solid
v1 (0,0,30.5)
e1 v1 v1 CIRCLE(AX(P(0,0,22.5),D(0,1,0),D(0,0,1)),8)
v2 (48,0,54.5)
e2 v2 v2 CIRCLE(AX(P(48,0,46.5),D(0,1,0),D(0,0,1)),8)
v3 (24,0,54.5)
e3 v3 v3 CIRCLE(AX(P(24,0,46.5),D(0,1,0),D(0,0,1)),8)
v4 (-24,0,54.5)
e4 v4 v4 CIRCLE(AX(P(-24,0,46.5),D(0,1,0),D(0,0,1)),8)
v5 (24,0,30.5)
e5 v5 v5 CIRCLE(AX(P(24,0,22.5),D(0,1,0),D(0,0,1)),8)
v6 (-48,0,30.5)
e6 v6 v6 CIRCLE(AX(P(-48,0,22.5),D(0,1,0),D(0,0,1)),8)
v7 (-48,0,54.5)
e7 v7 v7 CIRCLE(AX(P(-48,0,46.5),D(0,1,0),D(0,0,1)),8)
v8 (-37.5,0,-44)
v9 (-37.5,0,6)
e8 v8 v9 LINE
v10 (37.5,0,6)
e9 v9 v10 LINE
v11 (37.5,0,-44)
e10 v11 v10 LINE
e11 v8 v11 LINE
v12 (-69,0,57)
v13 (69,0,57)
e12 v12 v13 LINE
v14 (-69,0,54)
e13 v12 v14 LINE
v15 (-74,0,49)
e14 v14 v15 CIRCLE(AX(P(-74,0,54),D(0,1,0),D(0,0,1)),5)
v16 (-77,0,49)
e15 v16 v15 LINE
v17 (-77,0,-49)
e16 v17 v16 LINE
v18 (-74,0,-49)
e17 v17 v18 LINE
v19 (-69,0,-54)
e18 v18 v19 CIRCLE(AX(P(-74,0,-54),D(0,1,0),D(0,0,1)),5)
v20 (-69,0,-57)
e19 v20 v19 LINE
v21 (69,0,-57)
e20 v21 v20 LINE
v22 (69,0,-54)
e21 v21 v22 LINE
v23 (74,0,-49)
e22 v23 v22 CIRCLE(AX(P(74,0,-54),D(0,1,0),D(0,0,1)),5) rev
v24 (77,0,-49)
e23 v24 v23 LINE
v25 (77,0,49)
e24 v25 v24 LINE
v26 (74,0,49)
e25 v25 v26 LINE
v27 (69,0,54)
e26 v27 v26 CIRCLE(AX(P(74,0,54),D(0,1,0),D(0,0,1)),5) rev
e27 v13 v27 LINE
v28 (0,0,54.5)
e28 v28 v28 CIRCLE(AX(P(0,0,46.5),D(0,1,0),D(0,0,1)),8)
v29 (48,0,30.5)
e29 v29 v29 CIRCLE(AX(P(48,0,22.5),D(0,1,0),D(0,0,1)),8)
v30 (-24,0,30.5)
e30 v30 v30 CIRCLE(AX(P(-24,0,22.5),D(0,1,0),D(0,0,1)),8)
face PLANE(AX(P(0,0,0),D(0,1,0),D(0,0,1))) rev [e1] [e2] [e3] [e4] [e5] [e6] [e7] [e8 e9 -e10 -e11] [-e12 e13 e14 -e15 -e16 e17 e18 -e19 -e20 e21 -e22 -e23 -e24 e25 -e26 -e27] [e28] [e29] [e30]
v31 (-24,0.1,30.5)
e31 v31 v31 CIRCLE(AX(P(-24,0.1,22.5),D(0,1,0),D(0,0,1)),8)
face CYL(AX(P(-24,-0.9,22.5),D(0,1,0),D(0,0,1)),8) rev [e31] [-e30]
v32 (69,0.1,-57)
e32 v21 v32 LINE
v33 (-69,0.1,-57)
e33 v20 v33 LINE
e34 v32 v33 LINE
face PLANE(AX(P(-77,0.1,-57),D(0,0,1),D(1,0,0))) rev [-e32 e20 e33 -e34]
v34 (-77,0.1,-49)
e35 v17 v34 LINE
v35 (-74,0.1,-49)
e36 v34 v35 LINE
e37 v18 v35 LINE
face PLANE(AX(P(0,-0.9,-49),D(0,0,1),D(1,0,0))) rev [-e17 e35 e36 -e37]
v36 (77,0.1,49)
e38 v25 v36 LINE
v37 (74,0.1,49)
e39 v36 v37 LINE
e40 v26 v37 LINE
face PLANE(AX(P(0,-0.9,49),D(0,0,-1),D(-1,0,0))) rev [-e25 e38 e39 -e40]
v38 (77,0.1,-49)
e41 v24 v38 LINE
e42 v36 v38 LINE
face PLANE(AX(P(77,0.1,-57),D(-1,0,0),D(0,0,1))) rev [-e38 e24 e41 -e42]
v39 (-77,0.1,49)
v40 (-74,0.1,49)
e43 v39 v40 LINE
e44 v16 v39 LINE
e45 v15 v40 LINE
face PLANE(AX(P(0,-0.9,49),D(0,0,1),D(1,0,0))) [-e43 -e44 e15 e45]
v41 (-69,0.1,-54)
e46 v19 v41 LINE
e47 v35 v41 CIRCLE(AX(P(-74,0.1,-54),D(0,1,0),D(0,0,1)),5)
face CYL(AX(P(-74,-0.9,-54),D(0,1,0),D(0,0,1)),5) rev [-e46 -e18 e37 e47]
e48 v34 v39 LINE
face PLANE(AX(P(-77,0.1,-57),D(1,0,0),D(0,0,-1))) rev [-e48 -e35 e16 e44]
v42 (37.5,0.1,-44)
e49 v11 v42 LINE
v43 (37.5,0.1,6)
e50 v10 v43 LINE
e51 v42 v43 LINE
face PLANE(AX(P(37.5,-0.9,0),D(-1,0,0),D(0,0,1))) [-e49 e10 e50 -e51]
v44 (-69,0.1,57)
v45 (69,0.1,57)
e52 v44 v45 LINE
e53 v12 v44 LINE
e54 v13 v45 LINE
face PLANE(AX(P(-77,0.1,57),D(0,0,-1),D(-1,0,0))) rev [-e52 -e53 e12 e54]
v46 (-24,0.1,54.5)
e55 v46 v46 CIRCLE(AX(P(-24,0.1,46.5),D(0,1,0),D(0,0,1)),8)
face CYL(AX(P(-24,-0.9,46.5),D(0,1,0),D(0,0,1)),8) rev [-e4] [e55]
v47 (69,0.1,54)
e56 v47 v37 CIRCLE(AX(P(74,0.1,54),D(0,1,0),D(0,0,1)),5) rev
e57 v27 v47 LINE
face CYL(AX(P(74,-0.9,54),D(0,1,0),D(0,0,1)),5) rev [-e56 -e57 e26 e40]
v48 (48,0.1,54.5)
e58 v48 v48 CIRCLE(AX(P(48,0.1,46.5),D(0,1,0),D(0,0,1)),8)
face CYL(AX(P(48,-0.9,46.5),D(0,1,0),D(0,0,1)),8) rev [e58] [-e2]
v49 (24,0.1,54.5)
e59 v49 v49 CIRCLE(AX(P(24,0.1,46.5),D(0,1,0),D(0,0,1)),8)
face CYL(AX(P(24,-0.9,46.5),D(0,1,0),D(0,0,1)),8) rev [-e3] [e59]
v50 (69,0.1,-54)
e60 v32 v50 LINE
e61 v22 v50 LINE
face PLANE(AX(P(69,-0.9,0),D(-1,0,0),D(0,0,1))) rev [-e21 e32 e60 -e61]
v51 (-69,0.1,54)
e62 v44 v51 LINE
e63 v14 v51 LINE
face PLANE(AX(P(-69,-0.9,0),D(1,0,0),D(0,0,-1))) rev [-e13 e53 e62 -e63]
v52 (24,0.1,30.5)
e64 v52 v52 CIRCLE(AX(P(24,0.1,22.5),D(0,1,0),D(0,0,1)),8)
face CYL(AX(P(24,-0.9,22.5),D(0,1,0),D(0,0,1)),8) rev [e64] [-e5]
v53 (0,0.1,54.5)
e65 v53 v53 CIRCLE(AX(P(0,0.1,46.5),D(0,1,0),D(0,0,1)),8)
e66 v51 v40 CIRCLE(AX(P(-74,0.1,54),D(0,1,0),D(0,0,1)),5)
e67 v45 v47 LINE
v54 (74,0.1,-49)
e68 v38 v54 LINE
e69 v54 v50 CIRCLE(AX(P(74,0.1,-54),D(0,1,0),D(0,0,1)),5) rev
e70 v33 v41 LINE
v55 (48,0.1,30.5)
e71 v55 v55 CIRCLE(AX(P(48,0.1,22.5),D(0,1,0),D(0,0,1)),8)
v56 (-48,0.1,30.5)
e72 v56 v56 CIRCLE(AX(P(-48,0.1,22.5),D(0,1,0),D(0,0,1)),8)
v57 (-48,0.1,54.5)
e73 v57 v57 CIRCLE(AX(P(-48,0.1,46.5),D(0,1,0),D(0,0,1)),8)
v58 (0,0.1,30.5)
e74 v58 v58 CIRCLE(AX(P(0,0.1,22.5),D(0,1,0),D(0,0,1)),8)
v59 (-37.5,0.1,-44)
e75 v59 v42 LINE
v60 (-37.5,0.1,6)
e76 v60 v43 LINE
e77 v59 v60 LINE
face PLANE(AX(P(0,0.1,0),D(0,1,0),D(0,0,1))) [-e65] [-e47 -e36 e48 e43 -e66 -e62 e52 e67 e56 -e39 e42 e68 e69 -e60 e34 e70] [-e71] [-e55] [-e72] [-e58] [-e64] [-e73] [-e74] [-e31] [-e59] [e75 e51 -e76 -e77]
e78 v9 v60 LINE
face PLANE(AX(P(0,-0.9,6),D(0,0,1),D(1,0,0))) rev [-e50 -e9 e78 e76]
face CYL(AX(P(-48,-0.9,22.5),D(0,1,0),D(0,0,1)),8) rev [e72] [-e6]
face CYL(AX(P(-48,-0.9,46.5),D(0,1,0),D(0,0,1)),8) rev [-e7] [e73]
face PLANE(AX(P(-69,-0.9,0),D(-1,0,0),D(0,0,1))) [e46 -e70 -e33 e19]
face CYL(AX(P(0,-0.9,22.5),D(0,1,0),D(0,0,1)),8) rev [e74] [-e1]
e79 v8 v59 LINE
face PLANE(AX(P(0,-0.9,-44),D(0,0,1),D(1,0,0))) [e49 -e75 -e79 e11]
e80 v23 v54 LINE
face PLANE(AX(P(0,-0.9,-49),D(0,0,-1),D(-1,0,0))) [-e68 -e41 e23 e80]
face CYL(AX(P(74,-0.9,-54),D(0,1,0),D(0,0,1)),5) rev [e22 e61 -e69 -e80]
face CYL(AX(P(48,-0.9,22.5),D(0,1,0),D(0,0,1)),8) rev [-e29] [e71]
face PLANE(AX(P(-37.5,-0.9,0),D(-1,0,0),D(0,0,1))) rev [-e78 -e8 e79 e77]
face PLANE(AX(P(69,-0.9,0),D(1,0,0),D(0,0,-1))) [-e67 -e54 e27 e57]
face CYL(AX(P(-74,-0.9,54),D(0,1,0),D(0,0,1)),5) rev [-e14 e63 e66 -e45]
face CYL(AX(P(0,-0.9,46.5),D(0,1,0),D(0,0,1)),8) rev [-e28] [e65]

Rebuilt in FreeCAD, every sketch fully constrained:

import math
import FreeCAD as App
import Part
import Sketcher
from FreeCAD import Vector

doc = App.newDocument("Part")
params = doc.addObject("Spreadsheet::Sheet", "Params")
for row, (alias, value) in enumerate([
    ("sketch1_width", "154 mm"),
    ("sketch1_height", "114 mm"),
    ("pad1_length", "0.1 mm"),
    ("sketch2_radius", "5.05 mm"),
    ("pocket1_length", "3 mm"),
    ("sketch3_diameter", "16 mm"),
    ("sketch3_radius", "5 mm"),
    ("sketch3_width", "8 mm"),
    ("sketch3_width2", "75 mm"),
    ("sketch3_height", "50 mm"),
    ("pocket2_length", "1 mm"),
], start=1):
    params.set(f"A{row}", alias)
    params.set(f"B{row}", "=" + value)
    params.setAlias(f"B{row}", alias)

body = doc.addObject("PartDesign::Body", "Body")

# Sketch on XZ plane
sketch1 = doc.addObject("Sketcher::SketchObject", "Sketch")
body.addObject(sketch1)
sketch1.AttachmentSupport = (doc.XZ_Plane, [""])
sketch1.MapMode = "FlatFace"
sketch1.addGeometry(Part.LineSegment(Vector(-77, -57, 0), Vector(-77, 57, 0)), False)
sketch1.addGeometry(Part.LineSegment(Vector(-77, 57, 0), Vector(77, 57, 0)), False)
sketch1.addGeometry(Part.LineSegment(Vector(77, 57, 0), Vector(77, -57, 0)), False)
sketch1.addGeometry(Part.LineSegment(Vector(77, -57, 0), Vector(-77, -57, 0)), False)
sketch1.addConstraint(Sketcher.Constraint("Coincident", 0, 2, 1, 1))
sketch1.addConstraint(Sketcher.Constraint("Coincident", 1, 2, 2, 1))
sketch1.addConstraint(Sketcher.Constraint("Coincident", 2, 2, 3, 1))
sketch1.addConstraint(Sketcher.Constraint("Coincident", 3, 2, 0, 1))
sketch1.addConstraint(Sketcher.Constraint("Vertical", 0))
sketch1.addConstraint(Sketcher.Constraint("Horizontal", 1))
sketch1.addConstraint(Sketcher.Constraint("Vertical", 2))
sketch1.addConstraint(Sketcher.Constraint("Horizontal", 3))
sketch1.addConstraint(Sketcher.Constraint("Symmetric", 0, 2, 2, 2, -1, 1))
sketch1.addConstraint(Sketcher.Constraint("DistanceX", 1, 1, 1, 2, 154.0))
sketch1.addConstraint(Sketcher.Constraint("DistanceY", 0, 1, 0, 2, 114.0))
sketch1.setExpression("Constraints[9]", "Params.sketch1_width")
sketch1.setExpression("Constraints[10]", "Params.sketch1_height")
pad1 = doc.addObject("PartDesign::Pad", "Pad")
body.addObject(pad1)
pad1.Profile = sketch1
pad1.setExpression("Length", "Params.pad1_length")
pad1.Reversed = True

# Sketch on XZ plane
sketch2 = doc.addObject("Sketcher::SketchObject", "Sketch001")
body.addObject(sketch2)
sketch2.AttachmentSupport = (doc.XZ_Plane, [""])
sketch2.MapMode = "FlatFace"
sketch2.AttachmentOffset = App.Placement(Vector(0, 0, -0.1), App.Rotation())
sketch2.addGeometry(Part.LineSegment(Vector(-52, 19, 0), Vector(-52, 26, 0)), False)
sketch2.addGeometry(Part.ArcOfCircle(Part.Circle(Vector(-48, 22, 0), Vector(0, 0, 1), 5), math.radians(37), math.radians(143)), False)
sketch2.addGeometry(Part.LineSegment(Vector(-44, 26, 0), Vector(-44, 19, 0)), False)
sketch2.addGeometry(Part.ArcOfCircle(Part.Circle(Vector(-48, 22, 0), Vector(0, 0, 1), 5), math.radians(-143), math.radians(-37)), False)
sketch2.addGeometry(Part.LineSegment(Vector(-20, 26, 0), Vector(-20, 19, 0)), False)
sketch2.addGeometry(Part.ArcOfCircle(Part.Circle(Vector(-24, 22, 0), Vector(0, 0, 1), 5), math.radians(-143), math.radians(-37)), False)
sketch2.addGeometry(Part.LineSegment(Vector(-28, 19, 0), Vector(-28, 26, 0)), False)
sketch2.addGeometry(Part.ArcOfCircle(Part.Circle(Vector(-24, 22, 0), Vector(0, 0, 1), 5), math.radians(37), math.radians(143)), False)
sketch2.addGeometry(Part.LineSegment(Vector(4, 26, 0), Vector(4, 19, 0)), False)
sketch2.addGeometry(Part.ArcOfCircle(Part.Circle(Vector(0, 22, 0), Vector(0, 0, 1), 5), math.radians(-143), math.radians(-37)), False)
sketch2.addGeometry(Part.LineSegment(Vector(-4, 19, 0), Vector(-4, 26, 0)), False)
sketch2.addGeometry(Part.ArcOfCircle(Part.Circle(Vector(0, 22, 0), Vector(0, 0, 1), 5), math.radians(37), math.radians(143)), False)
sketch2.addGeometry(Part.LineSegment(Vector(28, 26, 0), Vector(28, 19, 0)), False)
sketch2.addGeometry(Part.ArcOfCircle(Part.Circle(Vector(24, 22, 0), Vector(0, 0, 1), 5), math.radians(-143), math.radians(-37)), False)
sketch2.addGeometry(Part.LineSegment(Vector(20, 19, 0), Vector(20, 26, 0)), False)
sketch2.addGeometry(Part.ArcOfCircle(Part.Circle(Vector(24, 22, 0), Vector(0, 0, 1), 5), math.radians(37), math.radians(143)), False)
sketch2.addGeometry(Part.LineSegment(Vector(52, 26, 0), Vector(52, 19, 0)), False)
sketch2.addGeometry(Part.ArcOfCircle(Part.Circle(Vector(48, 22, 0), Vector(0, 0, 1), 5), math.radians(-143), math.radians(-37)), False)
sketch2.addGeometry(Part.LineSegment(Vector(44, 19, 0), Vector(44, 26, 0)), False)
sketch2.addGeometry(Part.ArcOfCircle(Part.Circle(Vector(48, 22, 0), Vector(0, 0, 1), 5), math.radians(37), math.radians(143)), False)
sketch2.addGeometry(Part.LineSegment(Vector(-20, 50, 0), Vector(-20, 43, 0)), False)
sketch2.addGeometry(Part.ArcOfCircle(Part.Circle(Vector(-24, 46, 0), Vector(0, 0, 1), 5), math.radians(-143), math.radians(-37)), False)
sketch2.addGeometry(Part.LineSegment(Vector(-28, 43, 0), Vector(-28, 50, 0)), False)
sketch2.addGeometry(Part.ArcOfCircle(Part.Circle(Vector(-24, 46, 0), Vector(0, 0, 1), 5), math.radians(37), math.radians(143)), False)
sketch2.addGeometry(Part.LineSegment(Vector(4, 50, 0), Vector(4, 43, 0)), False)
sketch2.addGeometry(Part.ArcOfCircle(Part.Circle(Vector(0, 46, 0), Vector(0, 0, 1), 5), math.radians(-143), math.radians(-37)), False)
sketch2.addGeometry(Part.LineSegment(Vector(-4, 43, 0), Vector(-4, 50, 0)), False)
sketch2.addGeometry(Part.ArcOfCircle(Part.Circle(Vector(0, 46, 0), Vector(0, 0, 1), 5), math.radians(37), math.radians(143)), False)
sketch2.addGeometry(Part.LineSegment(Vector(28, 50, 0), Vector(28, 43, 0)), False)
sketch2.addGeometry(Part.ArcOfCircle(Part.Circle(Vector(24, 46, 0), Vector(0, 0, 1), 5), math.radians(-143), math.radians(-37)), False)
sketch2.addGeometry(Part.LineSegment(Vector(20, 43, 0), Vector(20, 50, 0)), False)
sketch2.addGeometry(Part.ArcOfCircle(Part.Circle(Vector(24, 46, 0), Vector(0, 0, 1), 5), math.radians(37), math.radians(143)), False)
sketch2.addGeometry(Part.LineSegment(Vector(52, 50, 0), Vector(52, 43, 0)), False)
sketch2.addGeometry(Part.ArcOfCircle(Part.Circle(Vector(48, 46, 0), Vector(0, 0, 1), 5), math.radians(-143), math.radians(-37)), False)
sketch2.addGeometry(Part.LineSegment(Vector(44, 43, 0), Vector(44, 50, 0)), False)
sketch2.addGeometry(Part.ArcOfCircle(Part.Circle(Vector(48, 46, 0), Vector(0, 0, 1), 5), math.radians(37), math.radians(143)), False)
sketch2.addGeometry(Part.LineSegment(Vector(-44, 50, 0), Vector(-44, 43, 0)), False)
sketch2.addGeometry(Part.ArcOfCircle(Part.Circle(Vector(-48, 46, 0), Vector(0, 0, 1), 5), math.radians(-143), math.radians(-37)), False)
sketch2.addGeometry(Part.LineSegment(Vector(-52, 43, 0), Vector(-52, 50, 0)), False)
sketch2.addGeometry(Part.ArcOfCircle(Part.Circle(Vector(-48, 46, 0), Vector(0, 0, 1), 5), math.radians(37), math.radians(143)), False)
sketch2.addConstraint(Sketcher.Constraint("Coincident", 0, 2, 1, 2))
sketch2.addConstraint(Sketcher.Constraint("Coincident", 1, 1, 2, 1))
sketch2.addConstraint(Sketcher.Constraint("Coincident", 2, 2, 3, 2))
sketch2.addConstraint(Sketcher.Constraint("Coincident", 3, 1, 0, 1))
sketch2.addConstraint(Sketcher.Constraint("Coincident", 4, 2, 5, 2))
sketch2.addConstraint(Sketcher.Constraint("Coincident", 5, 1, 6, 1))
sketch2.addConstraint(Sketcher.Constraint("Coincident", 6, 2, 7, 2))
sketch2.addConstraint(Sketcher.Constraint("Coincident", 7, 1, 4, 1))
sketch2.addConstraint(Sketcher.Constraint("Coincident", 8, 2, 9, 2))
sketch2.addConstraint(Sketcher.Constraint("Coincident", 9, 1, 10, 1))
sketch2.addConstraint(Sketcher.Constraint("Coincident", 10, 2, 11, 2))
sketch2.addConstraint(Sketcher.Constraint("Coincident", 11, 1, 8, 1))
sketch2.addConstraint(Sketcher.Constraint("Coincident", 12, 2, 13, 2))
sketch2.addConstraint(Sketcher.Constraint("Coincident", 13, 1, 14, 1))
sketch2.addConstraint(Sketcher.Constraint("Coincident", 14, 2, 15, 2))
sketch2.addConstraint(Sketcher.Constraint("Coincident", 15, 1, 12, 1))
sketch2.addConstraint(Sketcher.Constraint("Coincident", 16, 2, 17, 2))
sketch2.addConstraint(Sketcher.Constraint("Coincident", 17, 1, 18, 1))
sketch2.addConstraint(Sketcher.Constraint("Coincident", 18, 2, 19, 2))
sketch2.addConstraint(Sketcher.Constraint("Coincident", 19, 1, 16, 1))
sketch2.addConstraint(Sketcher.Constraint("Coincident", 20, 2, 21, 2))
sketch2.addConstraint(Sketcher.Constraint("Coincident", 21, 1, 22, 1))
sketch2.addConstraint(Sketcher.Constraint("Coincident", 22, 2, 23, 2))
sketch2.addConstraint(Sketcher.Constraint("Coincident", 23, 1, 20, 1))
sketch2.addConstraint(Sketcher.Constraint("Coincident", 24, 2, 25, 2))
sketch2.addConstraint(Sketcher.Constraint("Coincident", 25, 1, 26, 1))
sketch2.addConstraint(Sketcher.Constraint("Coincident", 26, 2, 27, 2))
sketch2.addConstraint(Sketcher.Constraint("Coincident", 27, 1, 24, 1))
sketch2.addConstraint(Sketcher.Constraint("Coincident", 28, 2, 29, 2))
sketch2.addConstraint(Sketcher.Constraint("Coincident", 29, 1, 30, 1))
sketch2.addConstraint(Sketcher.Constraint("Coincident", 30, 2, 31, 2))
sketch2.addConstraint(Sketcher.Constraint("Coincident", 31, 1, 28, 1))
sketch2.addConstraint(Sketcher.Constraint("Coincident", 32, 2, 33, 2))
sketch2.addConstraint(Sketcher.Constraint("Coincident", 33, 1, 34, 1))
sketch2.addConstraint(Sketcher.Constraint("Coincident", 34, 2, 35, 2))
sketch2.addConstraint(Sketcher.Constraint("Coincident", 35, 1, 32, 1))
sketch2.addConstraint(Sketcher.Constraint("Coincident", 36, 2, 37, 2))
sketch2.addConstraint(Sketcher.Constraint("Coincident", 37, 1, 38, 1))
sketch2.addConstraint(Sketcher.Constraint("Coincident", 38, 2, 39, 2))
sketch2.addConstraint(Sketcher.Constraint("Coincident", 39, 1, 36, 1))
sketch2.addConstraint(Sketcher.Constraint("Vertical", 0))
sketch2.addConstraint(Sketcher.Constraint("Vertical", 2))
sketch2.addConstraint(Sketcher.Constraint("Vertical", 4))
sketch2.addConstraint(Sketcher.Constraint("Vertical", 6))
sketch2.addConstraint(Sketcher.Constraint("Vertical", 8))
sketch2.addConstraint(Sketcher.Constraint("Vertical", 10))
sketch2.addConstraint(Sketcher.Constraint("Vertical", 12))
sketch2.addConstraint(Sketcher.Constraint("Vertical", 14))
sketch2.addConstraint(Sketcher.Constraint("Vertical", 16))
sketch2.addConstraint(Sketcher.Constraint("Vertical", 18))
sketch2.addConstraint(Sketcher.Constraint("Vertical", 20))
sketch2.addConstraint(Sketcher.Constraint("Vertical", 22))
sketch2.addConstraint(Sketcher.Constraint("Vertical", 24))
sketch2.addConstraint(Sketcher.Constraint("Vertical", 26))
sketch2.addConstraint(Sketcher.Constraint("Vertical", 28))
sketch2.addConstraint(Sketcher.Constraint("Vertical", 30))
sketch2.addConstraint(Sketcher.Constraint("Vertical", 32))
sketch2.addConstraint(Sketcher.Constraint("Vertical", 34))
sketch2.addConstraint(Sketcher.Constraint("Vertical", 36))
sketch2.addConstraint(Sketcher.Constraint("Vertical", 38))
sketch2.addConstraint(Sketcher.Constraint("Coincident", 3, 3, 1, 3))
sketch2.addConstraint(Sketcher.Constraint("Coincident", 7, 3, 5, 3))
sketch2.addConstraint(Sketcher.Constraint("Coincident", 11, 3, 9, 3))
sketch2.addConstraint(Sketcher.Constraint("Coincident", 15, 3, 13, 3))
sketch2.addConstraint(Sketcher.Constraint("Coincident", 19, 3, 17, 3))
sketch2.addConstraint(Sketcher.Constraint("Coincident", 23, 3, 21, 3))
sketch2.addConstraint(Sketcher.Constraint("Coincident", 27, 3, 25, 3))
sketch2.addConstraint(Sketcher.Constraint("Coincident", 31, 3, 29, 3))
sketch2.addConstraint(Sketcher.Constraint("Coincident", 35, 3, 33, 3))
sketch2.addConstraint(Sketcher.Constraint("Coincident", 39, 3, 37, 3))
sketch2.addConstraint(Sketcher.Constraint("Equal", 1, 3))
sketch2.addConstraint(Sketcher.Constraint("Equal", 3, 5))
sketch2.addConstraint(Sketcher.Constraint("Equal", 5, 7))
sketch2.addConstraint(Sketcher.Constraint("Equal", 7, 9))
sketch2.addConstraint(Sketcher.Constraint("Equal", 9, 11))
sketch2.addConstraint(Sketcher.Constraint("Equal", 11, 13))
sketch2.addConstraint(Sketcher.Constraint("Equal", 13, 15))
sketch2.addConstraint(Sketcher.Constraint("Equal", 15, 17))
sketch2.addConstraint(Sketcher.Constraint("Equal", 17, 19))
sketch2.addConstraint(Sketcher.Constraint("Equal", 19, 21))
sketch2.addConstraint(Sketcher.Constraint("Equal", 21, 23))
sketch2.addConstraint(Sketcher.Constraint("Equal", 23, 25))
sketch2.addConstraint(Sketcher.Constraint("Equal", 25, 27))
sketch2.addConstraint(Sketcher.Constraint("Equal", 27, 29))
sketch2.addConstraint(Sketcher.Constraint("Equal", 29, 31))
sketch2.addConstraint(Sketcher.Constraint("Equal", 31, 33))
sketch2.addConstraint(Sketcher.Constraint("Equal", 33, 35))
sketch2.addConstraint(Sketcher.Constraint("Equal", 35, 37))
sketch2.addConstraint(Sketcher.Constraint("Equal", 37, 39))
sketch2.addConstraint(Sketcher.Constraint("Symmetric", 5, 3, 13, 3, -2))
sketch2.addConstraint(Sketcher.Constraint("Symmetric", 1, 3, 17, 3, -2))
sketch2.addConstraint(Sketcher.Constraint("Symmetric", 21, 3, 29, 3, -2))
sketch2.addConstraint(Sketcher.Constraint("Symmetric", 33, 3, 37, 3, -2))
sketch2.addConstraint(Sketcher.Constraint("Symmetric", 8, 2, 9, 1, -2))
sketch2.addConstraint(Sketcher.Constraint("Symmetric", 24, 2, 25, 1, -2))
sketch2.addConstraint(Sketcher.Constraint("Horizontal", 3, 3, 5, 3))
sketch2.addConstraint(Sketcher.Constraint("Horizontal", 7, 3, 9, 3))
sketch2.addConstraint(Sketcher.Constraint("Horizontal", 23, 3, 25, 3))
sketch2.addConstraint(Sketcher.Constraint("Horizontal", 31, 3, 33, 3))
sketch2.addConstraint(Sketcher.Constraint("Horizontal", 0, 2, 1, 1))
sketch2.addConstraint(Sketcher.Constraint("Horizontal", 3, 1, 4, 2))
sketch2.addConstraint(Sketcher.Constraint("Horizontal", 4, 2, 5, 1))
sketch2.addConstraint(Sketcher.Constraint("Horizontal", 5, 1, 8, 2))
sketch2.addConstraint(Sketcher.Constraint("Horizontal", 9, 1, 12, 2))
sketch2.addConstraint(Sketcher.Constraint("Horizontal", 12, 2, 13, 1))
sketch2.addConstraint(Sketcher.Constraint("Horizontal", 13, 1, 16, 2))
sketch2.addConstraint(Sketcher.Constraint("Horizontal", 16, 2, 17, 1))
sketch2.addConstraint(Sketcher.Constraint("Horizontal", 20, 2, 21, 1))
sketch2.addConstraint(Sketcher.Constraint("Horizontal", 21, 1, 24, 2))
sketch2.addConstraint(Sketcher.Constraint("Horizontal", 25, 1, 28, 2))
sketch2.addConstraint(Sketcher.Constraint("Horizontal", 28, 2, 29, 1))
sketch2.addConstraint(Sketcher.Constraint("Horizontal", 29, 1, 32, 2))
sketch2.addConstraint(Sketcher.Constraint("Horizontal", 32, 2, 33, 1))
sketch2.addConstraint(Sketcher.Constraint("Horizontal", 33, 1, 36, 2))
sketch2.addConstraint(Sketcher.Constraint("Horizontal", 36, 2, 37, 1))
sketch2.addConstraint(Sketcher.Constraint("Vertical", 7, 3, 21, 3))
sketch2.addConstraint(Sketcher.Constraint("Vertical", 19, 3, 33, 3))
sketch2.addConstraint(Sketcher.Constraint("Vertical", 7, 1, 20, 2))
sketch2.addConstraint(Sketcher.Constraint("Radius", 1, 5.05))
sketch2.addConstraint(Sketcher.Constraint("DistanceX", 1, 3, -1, 1, 48.0))
sketch2.addConstraint(Sketcher.Constraint("DistanceX", 5, 3, -1, 1, 24.0))
sketch2.addConstraint(Sketcher.Constraint("DistanceY", 5, 3, 21, 3, 24.0))
sketch2.addConstraint(Sketcher.Constraint("DistanceY", -1, 1, 1, 3, 22.5))
sketch2.addConstraint(Sketcher.Constraint("DistanceX", 0, 2, 1, 1, 8.1))
sketch2.setExpression("Constraints[118]", "Params.sketch2_radius")
pocket1 = doc.addObject("PartDesign::Pocket", "Pocket")
body.addObject(pocket1)
pocket1.Profile = sketch2
pocket1.setExpression("Length", "Params.pocket1_length")
pocket1.Reversed = True

# Sketch on XZ plane
sketch3 = doc.addObject("Sketcher::SketchObject", "Sketch002")
body.addObject(sketch3)
sketch3.AttachmentSupport = (doc.XZ_Plane, [""])
sketch3.MapMode = "FlatFace"
sketch3.AttachmentOffset = App.Placement(Vector(0, 0, -0.1), App.Rotation())
sketch3.addGeometry(Part.LineSegment(Vector(-69, -57, 0), Vector(-77, -57, 0)), False)
sketch3.addGeometry(Part.LineSegment(Vector(-77, -57, 0), Vector(-77, -49, 0)), False)
sketch3.addGeometry(Part.LineSegment(Vector(-77, -49, 0), Vector(-74, -49, 0)), False)
sketch3.addGeometry(Part.ArcOfCircle(Part.Circle(Vector(-74, -54, 0), Vector(0, 0, 1), 5), math.radians(0), math.radians(90)), False)
sketch3.addGeometry(Part.LineSegment(Vector(-69, -54, 0), Vector(-69, -57, 0)), False)
sketch3.addGeometry(Part.LineSegment(Vector(77, -57, 0), Vector(69, -57, 0)), False)
sketch3.addGeometry(Part.LineSegment(Vector(69, -57, 0), Vector(69, -54, 0)), False)
sketch3.addGeometry(Part.ArcOfCircle(Part.Circle(Vector(74, -54, 0), Vector(0, 0, 1), 5), math.radians(90), math.radians(180)), False)
sketch3.addGeometry(Part.LineSegment(Vector(74, -49, 0), Vector(77, -49, 0)), False)
sketch3.addGeometry(Part.LineSegment(Vector(77, -49, 0), Vector(77, -57, 0)), False)
sketch3.addGeometry(Part.LineSegment(Vector(77, 57, 0), Vector(77, 49, 0)), False)
sketch3.addGeometry(Part.LineSegment(Vector(77, 49, 0), Vector(74, 49, 0)), False)
sketch3.addGeometry(Part.ArcOfCircle(Part.Circle(Vector(74, 54, 0), Vector(0, 0, 1), 5), math.radians(180), math.radians(270)), False)
sketch3.addGeometry(Part.LineSegment(Vector(69, 54, 0), Vector(69, 57, 0)), False)
sketch3.addGeometry(Part.LineSegment(Vector(69, 57, 0), Vector(77, 57, 0)), False)
sketch3.addGeometry(Part.LineSegment(Vector(-74, 49, 0), Vector(-77, 49, 0)), False)
sketch3.addGeometry(Part.LineSegment(Vector(-77, 49, 0), Vector(-77, 57, 0)), False)
sketch3.addGeometry(Part.LineSegment(Vector(-77, 57, 0), Vector(-69, 57, 0)), False)
sketch3.addGeometry(Part.LineSegment(Vector(-69, 57, 0), Vector(-69, 54, 0)), False)
sketch3.addGeometry(Part.ArcOfCircle(Part.Circle(Vector(-74, 54, 0), Vector(0, 0, 1), 5), math.radians(-90), math.radians(0)), False)
sketch3.addGeometry(Part.Circle(Vector(-48, 22.5, 0), Vector(0, 0, 1), 8), False)
sketch3.addGeometry(Part.ArcOfCircle(Part.Circle(Vector(-48, 22.5, 0), Vector(0, 0, 1), 5), math.radians(37), math.radians(143)), False)
sketch3.addGeometry(Part.LineSegment(Vector(-52, 25.5, 0), Vector(-52, 19.5, 0)), False)
sketch3.addGeometry(Part.ArcOfCircle(Part.Circle(Vector(-48, 22.5, 0), Vector(0, 0, 1), 5), math.radians(-143), math.radians(-37)), False)
sketch3.addGeometry(Part.LineSegment(Vector(-44, 19.5, 0), Vector(-44, 25.5, 0)), False)
sketch3.addGeometry(Part.Circle(Vector(-24, 22.5, 0), Vector(0, 0, 1), 8), False)
sketch3.addGeometry(Part.ArcOfCircle(Part.Circle(Vector(-24, 22.5, 0), Vector(0, 0, 1), 5), math.radians(37), math.radians(143)), False)
sketch3.addGeometry(Part.LineSegment(Vector(-28.1, 25.5, 0), Vector(-28.1, 19.5, 0)), False)
sketch3.addGeometry(Part.ArcOfCircle(Part.Circle(Vector(-24, 22.5, 0), Vector(0, 0, 1), 5), math.radians(-143), math.radians(-37)), False)
sketch3.addGeometry(Part.LineSegment(Vector(-19.9, 19.5, 0), Vector(-19.9, 25.5, 0)), False)
sketch3.addGeometry(Part.Circle(Vector(0, 22.5, 0), Vector(0, 0, 1), 8), False)
sketch3.addGeometry(Part.ArcOfCircle(Part.Circle(Vector(0, 22.5, 0), Vector(0, 0, 1), 5), math.radians(37), math.radians(143)), False)
sketch3.addGeometry(Part.LineSegment(Vector(-4, 25.5, 0), Vector(-4, 19.5, 0)), False)
sketch3.addGeometry(Part.ArcOfCircle(Part.Circle(Vector(0, 22.5, 0), Vector(0, 0, 1), 5), math.radians(-143), math.radians(-37)), False)
sketch3.addGeometry(Part.LineSegment(Vector(4, 19.5, 0), Vector(4, 25.5, 0)), False)
sketch3.addGeometry(Part.Circle(Vector(24, 22.5, 0), Vector(0, 0, 1), 8), False)
sketch3.addGeometry(Part.ArcOfCircle(Part.Circle(Vector(24, 22.5, 0), Vector(0, 0, 1), 5), math.radians(37), math.radians(143)), False)
sketch3.addGeometry(Part.LineSegment(Vector(19.9, 25.5, 0), Vector(19.9, 19.5, 0)), False)
sketch3.addGeometry(Part.ArcOfCircle(Part.Circle(Vector(24, 22.5, 0), Vector(0, 0, 1), 5), math.radians(-143), math.radians(-37)), False)
sketch3.addGeometry(Part.LineSegment(Vector(28.1, 19.5, 0), Vector(28.1, 25.5, 0)), False)
sketch3.addGeometry(Part.Circle(Vector(48, 22.5, 0), Vector(0, 0, 1), 8), False)
sketch3.addGeometry(Part.ArcOfCircle(Part.Circle(Vector(48, 22.5, 0), Vector(0, 0, 1), 5), math.radians(37), math.radians(143)), False)
sketch3.addGeometry(Part.LineSegment(Vector(44, 25.5, 0), Vector(44, 19.5, 0)), False)
sketch3.addGeometry(Part.ArcOfCircle(Part.Circle(Vector(48, 22.5, 0), Vector(0, 0, 1), 5), math.radians(-143), math.radians(-37)), False)
sketch3.addGeometry(Part.LineSegment(Vector(52, 19.5, 0), Vector(52, 25.5, 0)), False)
sketch3.addGeometry(Part.Circle(Vector(48, 46.5, 0), Vector(0, 0, 1), 8), False)
sketch3.addGeometry(Part.ArcOfCircle(Part.Circle(Vector(48, 46.5, 0), Vector(0, 0, 1), 5), math.radians(37), math.radians(143)), False)
sketch3.addGeometry(Part.LineSegment(Vector(44, 49.5, 0), Vector(44, 43.5, 0)), False)
sketch3.addGeometry(Part.ArcOfCircle(Part.Circle(Vector(48, 46.5, 0), Vector(0, 0, 1), 5), math.radians(-143), math.radians(-37)), False)
sketch3.addGeometry(Part.LineSegment(Vector(52, 43.5, 0), Vector(52, 49.5, 0)), False)
sketch3.addGeometry(Part.Circle(Vector(24, 46.5, 0), Vector(0, 0, 1), 8), False)
sketch3.addGeometry(Part.ArcOfCircle(Part.Circle(Vector(24, 46.5, 0), Vector(0, 0, 1), 5), math.radians(37), math.radians(143)), False)
sketch3.addGeometry(Part.LineSegment(Vector(19.9, 49.5, 0), Vector(19.9, 43.5, 0)), False)
sketch3.addGeometry(Part.ArcOfCircle(Part.Circle(Vector(24, 46.5, 0), Vector(0, 0, 1), 5), math.radians(-143), math.radians(-37)), False)
sketch3.addGeometry(Part.LineSegment(Vector(28.1, 43.5, 0), Vector(28.1, 49.5, 0)), False)
sketch3.addGeometry(Part.Circle(Vector(0, 46.5, 0), Vector(0, 0, 1), 8), False)
sketch3.addGeometry(Part.ArcOfCircle(Part.Circle(Vector(0, 46.5, 0), Vector(0, 0, 1), 5), math.radians(37), math.radians(143)), False)
sketch3.addGeometry(Part.LineSegment(Vector(-4, 49.5, 0), Vector(-4, 43.5, 0)), False)
sketch3.addGeometry(Part.ArcOfCircle(Part.Circle(Vector(0, 46.5, 0), Vector(0, 0, 1), 5), math.radians(-143), math.radians(-37)), False)
sketch3.addGeometry(Part.LineSegment(Vector(4, 43.5, 0), Vector(4, 49.5, 0)), False)
sketch3.addGeometry(Part.Circle(Vector(-24, 46.5, 0), Vector(0, 0, 1), 8), False)
sketch3.addGeometry(Part.ArcOfCircle(Part.Circle(Vector(-24, 46.5, 0), Vector(0, 0, 1), 5), math.radians(37), math.radians(143)), False)
sketch3.addGeometry(Part.LineSegment(Vector(-28.1, 49.5, 0), Vector(-28.1, 43.5, 0)), False)
sketch3.addGeometry(Part.ArcOfCircle(Part.Circle(Vector(-24, 46.5, 0), Vector(0, 0, 1), 5), math.radians(-143), math.radians(-37)), False)
sketch3.addGeometry(Part.LineSegment(Vector(-19.9, 43.5, 0), Vector(-19.9, 49.5, 0)), False)
sketch3.addGeometry(Part.Circle(Vector(-48, 46.5, 0), Vector(0, 0, 1), 8), False)
sketch3.addGeometry(Part.ArcOfCircle(Part.Circle(Vector(-48, 46.5, 0), Vector(0, 0, 1), 5), math.radians(37), math.radians(143)), False)
sketch3.addGeometry(Part.LineSegment(Vector(-52, 49.5, 0), Vector(-52, 43.5, 0)), False)
sketch3.addGeometry(Part.ArcOfCircle(Part.Circle(Vector(-48, 46.5, 0), Vector(0, 0, 1), 5), math.radians(-143), math.radians(-37)), False)
sketch3.addGeometry(Part.LineSegment(Vector(-44, 43.5, 0), Vector(-44, 49.5, 0)), False)
sketch3.addGeometry(Part.LineSegment(Vector(-37.5, -44, 0), Vector(-37.5, 6, 0)), False)
sketch3.addGeometry(Part.LineSegment(Vector(-37.5, 6, 0), Vector(37.5, 6, 0)), False)
sketch3.addGeometry(Part.LineSegment(Vector(37.5, 6, 0), Vector(37.5, -44, 0)), False)
sketch3.addGeometry(Part.LineSegment(Vector(37.5, -44, 0), Vector(-37.5, -44, 0)), False)
sketch3.addConstraint(Sketcher.Constraint("Coincident", 0, 2, 1, 1))
sketch3.addConstraint(Sketcher.Constraint("Coincident", 1, 2, 2, 1))
sketch3.addConstraint(Sketcher.Constraint("Tangent", 2, 2, 3, 2))
sketch3.addConstraint(Sketcher.Constraint("Tangent", 3, 1, 4, 1))
sketch3.addConstraint(Sketcher.Constraint("Coincident", 4, 2, 0, 1))
sketch3.addConstraint(Sketcher.Constraint("Coincident", 5, 2, 6, 1))
sketch3.addConstraint(Sketcher.Constraint("Tangent", 6, 2, 7, 2))
sketch3.addConstraint(Sketcher.Constraint("Tangent", 7, 1, 8, 1))
sketch3.addConstraint(Sketcher.Constraint("Coincident", 8, 2, 9, 1))
sketch3.addConstraint(Sketcher.Constraint("Coincident", 9, 2, 5, 1))
sketch3.addConstraint(Sketcher.Constraint("Coincident", 10, 2, 11, 1))
sketch3.addConstraint(Sketcher.Constraint("Tangent", 11, 2, 12, 2))
sketch3.addConstraint(Sketcher.Constraint("Tangent", 12, 1, 13, 1))
sketch3.addConstraint(Sketcher.Constraint("Coincident", 13, 2, 14, 1))
sketch3.addConstraint(Sketcher.Constraint("Coincident", 14, 2, 10, 1))
sketch3.addConstraint(Sketcher.Constraint("Coincident", 15, 2, 16, 1))
sketch3.addConstraint(Sketcher.Constraint("Coincident", 16, 2, 17, 1))
sketch3.addConstraint(Sketcher.Constraint("Coincident", 17, 2, 18, 1))
sketch3.addConstraint(Sketcher.Constraint("Tangent", 18, 2, 19, 2))
sketch3.addConstraint(Sketcher.Constraint("Tangent", 19, 1, 15, 1))
sketch3.addConstraint(Sketcher.Constraint("Coincident", 21, 2, 22, 1))
sketch3.addConstraint(Sketcher.Constraint("Coincident", 22, 2, 23, 1))
sketch3.addConstraint(Sketcher.Constraint("Coincident", 23, 2, 24, 1))
sketch3.addConstraint(Sketcher.Constraint("Coincident", 24, 2, 21, 1))
sketch3.addConstraint(Sketcher.Constraint("Coincident", 26, 2, 27, 1))
sketch3.addConstraint(Sketcher.Constraint("Coincident", 27, 2, 28, 1))
sketch3.addConstraint(Sketcher.Constraint("Coincident", 28, 2, 29, 1))
sketch3.addConstraint(Sketcher.Constraint("Coincident", 29, 2, 26, 1))
sketch3.addConstraint(Sketcher.Constraint("Coincident", 31, 2, 32, 1))
sketch3.addConstraint(Sketcher.Constraint("Coincident", 32, 2, 33, 1))
sketch3.addConstraint(Sketcher.Constraint("Coincident", 33, 2, 34, 1))
sketch3.addConstraint(Sketcher.Constraint("Coincident", 34, 2, 31, 1))
sketch3.addConstraint(Sketcher.Constraint("Coincident", 36, 2, 37, 1))
sketch3.addConstraint(Sketcher.Constraint("Coincident", 37, 2, 38, 1))
sketch3.addConstraint(Sketcher.Constraint("Coincident", 38, 2, 39, 1))
sketch3.addConstraint(Sketcher.Constraint("Coincident", 39, 2, 36, 1))
sketch3.addConstraint(Sketcher.Constraint("Coincident", 41, 2, 42, 1))
sketch3.addConstraint(Sketcher.Constraint("Coincident", 42, 2, 43, 1))
sketch3.addConstraint(Sketcher.Constraint("Coincident", 43, 2, 44, 1))
sketch3.addConstraint(Sketcher.Constraint("Coincident", 44, 2, 41, 1))
sketch3.addConstraint(Sketcher.Constraint("Coincident", 46, 2, 47, 1))
sketch3.addConstraint(Sketcher.Constraint("Coincident", 47, 2, 48, 1))
sketch3.addConstraint(Sketcher.Constraint("Coincident", 48, 2, 49, 1))
sketch3.addConstraint(Sketcher.Constraint("Coincident", 49, 2, 46, 1))
sketch3.addConstraint(Sketcher.Constraint("Coincident", 51, 2, 52, 1))
sketch3.addConstraint(Sketcher.Constraint("Coincident", 52, 2, 53, 1))
sketch3.addConstraint(Sketcher.Constraint("Coincident", 53, 2, 54, 1))
sketch3.addConstraint(Sketcher.Constraint("Coincident", 54, 2, 51, 1))
sketch3.addConstraint(Sketcher.Constraint("Coincident", 56, 2, 57, 1))
sketch3.addConstraint(Sketcher.Constraint("Coincident", 57, 2, 58, 1))
sketch3.addConstraint(Sketcher.Constraint("Coincident", 58, 2, 59, 1))
sketch3.addConstraint(Sketcher.Constraint("Coincident", 59, 2, 56, 1))
sketch3.addConstraint(Sketcher.Constraint("Coincident", 61, 2, 62, 1))
sketch3.addConstraint(Sketcher.Constraint("Coincident", 62, 2, 63, 1))
sketch3.addConstraint(Sketcher.Constraint("Coincident", 63, 2, 64, 1))
sketch3.addConstraint(Sketcher.Constraint("Coincident", 64, 2, 61, 1))
sketch3.addConstraint(Sketcher.Constraint("Coincident", 66, 2, 67, 1))
sketch3.addConstraint(Sketcher.Constraint("Coincident", 67, 2, 68, 1))
sketch3.addConstraint(Sketcher.Constraint("Coincident", 68, 2, 69, 1))
sketch3.addConstraint(Sketcher.Constraint("Coincident", 69, 2, 66, 1))
sketch3.addConstraint(Sketcher.Constraint("Coincident", 70, 2, 71, 1))
sketch3.addConstraint(Sketcher.Constraint("Coincident", 71, 2, 72, 1))
sketch3.addConstraint(Sketcher.Constraint("Coincident", 72, 2, 73, 1))
sketch3.addConstraint(Sketcher.Constraint("Coincident", 73, 2, 70, 1))
sketch3.addConstraint(Sketcher.Constraint("Horizontal", 0))
sketch3.addConstraint(Sketcher.Constraint("Vertical", 1))
sketch3.addConstraint(Sketcher.Constraint("Horizontal", 2))
sketch3.addConstraint(Sketcher.Constraint("Vertical", 4))
sketch3.addConstraint(Sketcher.Constraint("Horizontal", 5))
sketch3.addConstraint(Sketcher.Constraint("Vertical", 6))
sketch3.addConstraint(Sketcher.Constraint("Horizontal", 8))
sketch3.addConstraint(Sketcher.Constraint("Vertical", 9))
sketch3.addConstraint(Sketcher.Constraint("Vertical", 10))
sketch3.addConstraint(Sketcher.Constraint("Horizontal", 11))
sketch3.addConstraint(Sketcher.Constraint("Vertical", 13))
sketch3.addConstraint(Sketcher.Constraint("Horizontal", 14))
sketch3.addConstraint(Sketcher.Constraint("Horizontal", 15))
sketch3.addConstraint(Sketcher.Constraint("Vertical", 16))
sketch3.addConstraint(Sketcher.Constraint("Horizontal", 17))
sketch3.addConstraint(Sketcher.Constraint("Vertical", 18))
sketch3.addConstraint(Sketcher.Constraint("Vertical", 22))
sketch3.addConstraint(Sketcher.Constraint("Vertical", 24))
sketch3.addConstraint(Sketcher.Constraint("Vertical", 27))
sketch3.addConstraint(Sketcher.Constraint("Vertical", 29))
sketch3.addConstraint(Sketcher.Constraint("Vertical", 32))
sketch3.addConstraint(Sketcher.Constraint("Vertical", 34))
sketch3.addConstraint(Sketcher.Constraint("Vertical", 37))
sketch3.addConstraint(Sketcher.Constraint("Vertical", 39))
sketch3.addConstraint(Sketcher.Constraint("Vertical", 42))
sketch3.addConstraint(Sketcher.Constraint("Vertical", 44))
sketch3.addConstraint(Sketcher.Constraint("Vertical", 47))
sketch3.addConstraint(Sketcher.Constraint("Vertical", 49))
sketch3.addConstraint(Sketcher.Constraint("Vertical", 52))
sketch3.addConstraint(Sketcher.Constraint("Vertical", 54))
sketch3.addConstraint(Sketcher.Constraint("Vertical", 57))
sketch3.addConstraint(Sketcher.Constraint("Vertical", 59))
sketch3.addConstraint(Sketcher.Constraint("Vertical", 62))
sketch3.addConstraint(Sketcher.Constraint("Vertical", 64))
sketch3.addConstraint(Sketcher.Constraint("Vertical", 67))
sketch3.addConstraint(Sketcher.Constraint("Vertical", 69))
sketch3.addConstraint(Sketcher.Constraint("Vertical", 70))
sketch3.addConstraint(Sketcher.Constraint("Horizontal", 71))
sketch3.addConstraint(Sketcher.Constraint("Vertical", 72))
sketch3.addConstraint(Sketcher.Constraint("Horizontal", 73))
sketch3.addConstraint(Sketcher.Constraint("Coincident", 21, 3, 20, 3))
sketch3.addConstraint(Sketcher.Constraint("Coincident", 23, 3, 20, 3))
sketch3.addConstraint(Sketcher.Constraint("Coincident", 26, 3, 25, 3))
sketch3.addConstraint(Sketcher.Constraint("Coincident", 28, 3, 25, 3))
sketch3.addConstraint(Sketcher.Constraint("Coincident", 31, 3, 30, 3))
sketch3.addConstraint(Sketcher.Constraint("Coincident", 33, 3, 30, 3))
sketch3.addConstraint(Sketcher.Constraint("Coincident", 36, 3, 35, 3))
sketch3.addConstraint(Sketcher.Constraint("Coincident", 38, 3, 35, 3))
sketch3.addConstraint(Sketcher.Constraint("Coincident", 41, 3, 40, 3))
sketch3.addConstraint(Sketcher.Constraint("Coincident", 43, 3, 40, 3))
sketch3.addConstraint(Sketcher.Constraint("Coincident", 46, 3, 45, 3))
sketch3.addConstraint(Sketcher.Constraint("Coincident", 48, 3, 45, 3))
sketch3.addConstraint(Sketcher.Constraint("Coincident", 51, 3, 50, 3))
sketch3.addConstraint(Sketcher.Constraint("Coincident", 53, 3, 50, 3))
sketch3.addConstraint(Sketcher.Constraint("Coincident", 56, 3, 55, 3))
sketch3.addConstraint(Sketcher.Constraint("Coincident", 58, 3, 55, 3))
sketch3.addConstraint(Sketcher.Constraint("Coincident", 61, 3, 60, 3))
sketch3.addConstraint(Sketcher.Constraint("Coincident", 63, 3, 60, 3))
sketch3.addConstraint(Sketcher.Constraint("Coincident", 66, 3, 65, 3))
sketch3.addConstraint(Sketcher.Constraint("Coincident", 68, 3, 65, 3))
sketch3.addConstraint(Sketcher.Constraint("Equal", 3, 7))
sketch3.addConstraint(Sketcher.Constraint("Equal", 7, 12))
sketch3.addConstraint(Sketcher.Constraint("Equal", 12, 19))
sketch3.addConstraint(Sketcher.Constraint("Equal", 21, 23))
sketch3.addConstraint(Sketcher.Constraint("Equal", 20, 25))
sketch3.addConstraint(Sketcher.Constraint("Equal", 23, 26))
sketch3.addConstraint(Sketcher.Constraint("Equal", 26, 28))
sketch3.addConstraint(Sketcher.Constraint("Equal", 25, 30))
sketch3.addConstraint(Sketcher.Constraint("Equal", 28, 31))
sketch3.addConstraint(Sketcher.Constraint("Equal", 31, 33))
sketch3.addConstraint(Sketcher.Constraint("Equal", 30, 35))
sketch3.addConstraint(Sketcher.Constraint("Equal", 33, 36))
sketch3.addConstraint(Sketcher.Constraint("Equal", 36, 38))
sketch3.addConstraint(Sketcher.Constraint("Equal", 35, 40))
sketch3.addConstraint(Sketcher.Constraint("Equal", 38, 41))
sketch3.addConstraint(Sketcher.Constraint("Equal", 41, 43))
sketch3.addConstraint(Sketcher.Constraint("Equal", 40, 45))
sketch3.addConstraint(Sketcher.Constraint("Equal", 43, 46))
sketch3.addConstraint(Sketcher.Constraint("Equal", 46, 48))
sketch3.addConstraint(Sketcher.Constraint("Equal", 45, 50))
sketch3.addConstraint(Sketcher.Constraint("Equal", 48, 51))
sketch3.addConstraint(Sketcher.Constraint("Equal", 51, 53))
sketch3.addConstraint(Sketcher.Constraint("Equal", 50, 55))
sketch3.addConstraint(Sketcher.Constraint("Equal", 53, 56))
sketch3.addConstraint(Sketcher.Constraint("Equal", 56, 58))
sketch3.addConstraint(Sketcher.Constraint("Equal", 55, 60))
sketch3.addConstraint(Sketcher.Constraint("Equal", 58, 61))
sketch3.addConstraint(Sketcher.Constraint("Equal", 61, 63))
sketch3.addConstraint(Sketcher.Constraint("Equal", 60, 65))
sketch3.addConstraint(Sketcher.Constraint("Equal", 63, 66))
sketch3.addConstraint(Sketcher.Constraint("Equal", 66, 68))
sketch3.addConstraint(Sketcher.Constraint("Symmetric", 3, 3, 12, 3, -1, 1))
sketch3.addConstraint(Sketcher.Constraint("Symmetric", 7, 3, 19, 3, -1, 1))
sketch3.addConstraint(Sketcher.Constraint("Symmetric", 0, 2, 14, 2, -1, 1))
sketch3.addConstraint(Sketcher.Constraint("Symmetric", 9, 2, 16, 2, -1, 1))
sketch3.addConstraint(Sketcher.Constraint("Symmetric", 3, 3, 7, 3, -2))
sketch3.addConstraint(Sketcher.Constraint("Symmetric", 25, 3, 35, 3, -2))
sketch3.addConstraint(Sketcher.Constraint("Symmetric", 20, 3, 40, 3, -2))
sketch3.addConstraint(Sketcher.Constraint("Symmetric", 50, 3, 60, 3, -2))
sketch3.addConstraint(Sketcher.Constraint("Symmetric", 45, 3, 65, 3, -2))
sketch3.addConstraint(Sketcher.Constraint("Symmetric", 0, 2, 9, 2, -2))
sketch3.addConstraint(Sketcher.Constraint("Symmetric", 32, 2, 33, 2, -2))
sketch3.addConstraint(Sketcher.Constraint("Symmetric", 57, 2, 58, 2, -2))
sketch3.addConstraint(Sketcher.Constraint("Horizontal", 23, 3, 25, 3))
sketch3.addConstraint(Sketcher.Constraint("Horizontal", 28, 3, 30, 3))
sketch3.addConstraint(Sketcher.Constraint("Horizontal", 48, 3, 50, 3))
sketch3.addConstraint(Sketcher.Constraint("Horizontal", 53, 3, 55, 3))
sketch3.addConstraint(Sketcher.Constraint("Horizontal", 22, 2, 23, 2))
sketch3.addConstraint(Sketcher.Constraint("Horizontal", 24, 2, 26, 2))
sketch3.addConstraint(Sketcher.Constraint("Horizontal", 27, 2, 28, 2))
sketch3.addConstraint(Sketcher.Constraint("Horizontal", 29, 2, 31, 2))
sketch3.addConstraint(Sketcher.Constraint("Horizontal", 34, 2, 36, 2))
sketch3.addConstraint(Sketcher.Constraint("Horizontal", 37, 2, 38, 2))
sketch3.addConstraint(Sketcher.Constraint("Horizontal", 39, 2, 41, 2))
sketch3.addConstraint(Sketcher.Constraint("Horizontal", 42, 2, 43, 2))
sketch3.addConstraint(Sketcher.Constraint("Horizontal", 47, 2, 48, 2))
sketch3.addConstraint(Sketcher.Constraint("Horizontal", 49, 2, 51, 2))
sketch3.addConstraint(Sketcher.Constraint("Horizontal", 52, 2, 53, 2))
sketch3.addConstraint(Sketcher.Constraint("Horizontal", 54, 2, 56, 2))
sketch3.addConstraint(Sketcher.Constraint("Horizontal", 59, 2, 61, 2))
sketch3.addConstraint(Sketcher.Constraint("Horizontal", 62, 2, 63, 2))
sketch3.addConstraint(Sketcher.Constraint("Horizontal", 64, 2, 66, 2))
sketch3.addConstraint(Sketcher.Constraint("Horizontal", 67, 2, 68, 2))
sketch3.addConstraint(Sketcher.Constraint("Vertical", 43, 3, 45, 3))
sketch3.addConstraint(Sketcher.Constraint("Vertical", 38, 3, 50, 3))
sketch3.addConstraint(Sketcher.Constraint("Vertical", 42, 2, 46, 2))
sketch3.addConstraint(Sketcher.Constraint("Equal", 17, 1))
sketch3.addConstraint(Sketcher.Constraint("Diameter", 20, 16.0))
sketch3.addConstraint(Sketcher.Constraint("Radius", 3, 5.0))
sketch3.addConstraint(Sketcher.Constraint("DistanceX", 0, 2, 0, 1, 8.0))
sketch3.addConstraint(Sketcher.Constraint("DistanceX", 71, 1, 71, 2, 75.0))
sketch3.addConstraint(Sketcher.Constraint("DistanceY", 70, 1, 70, 2, 50.0))
sketch3.addConstraint(Sketcher.Constraint("Radius", 21, 5.05))
sketch3.addConstraint(Sketcher.Constraint("DistanceX", 3, 3, -1, 1, 74.0))
sketch3.addConstraint(Sketcher.Constraint("DistanceY", 3, 3, -1, 1, 54.0))
sketch3.addConstraint(Sketcher.Constraint("DistanceX", 20, 3, -1, 1, 48.0))
sketch3.addConstraint(Sketcher.Constraint("DistanceX", 25, 3, -1, 1, 24.0))
sketch3.addConstraint(Sketcher.Constraint("DistanceY", -1, 1, 70, 2, 6.0))
sketch3.addConstraint(Sketcher.Constraint("DistanceY", -1, 1, 20, 3, 22.5))
sketch3.addConstraint(Sketcher.Constraint("DistanceY", -1, 1, 45, 3, 46.5))
sketch3.addConstraint(Sketcher.Constraint("DistanceX", 70, 2, -1, 1, 37.5))
sketch3.addConstraint(Sketcher.Constraint("DistanceX", 21, 2, -1, 1, 52.05))
sketch3.setExpression("Constraints[191]", "Params.sketch3_diameter")
sketch3.setExpression("Constraints[192]", "Params.sketch3_radius")
sketch3.setExpression("Constraints[193]", "Params.sketch3_width")
sketch3.setExpression("Constraints[194]", "Params.sketch3_width2")
sketch3.setExpression("Constraints[195]", "Params.sketch3_height")
pocket2 = doc.addObject("PartDesign::Pocket", "Pocket001")
body.addObject(pocket2)
pocket2.Profile = sketch3
pocket2.setExpression("Length", "Params.pocket2_length")
pocket2.Reversed = True

doc.recompute()
